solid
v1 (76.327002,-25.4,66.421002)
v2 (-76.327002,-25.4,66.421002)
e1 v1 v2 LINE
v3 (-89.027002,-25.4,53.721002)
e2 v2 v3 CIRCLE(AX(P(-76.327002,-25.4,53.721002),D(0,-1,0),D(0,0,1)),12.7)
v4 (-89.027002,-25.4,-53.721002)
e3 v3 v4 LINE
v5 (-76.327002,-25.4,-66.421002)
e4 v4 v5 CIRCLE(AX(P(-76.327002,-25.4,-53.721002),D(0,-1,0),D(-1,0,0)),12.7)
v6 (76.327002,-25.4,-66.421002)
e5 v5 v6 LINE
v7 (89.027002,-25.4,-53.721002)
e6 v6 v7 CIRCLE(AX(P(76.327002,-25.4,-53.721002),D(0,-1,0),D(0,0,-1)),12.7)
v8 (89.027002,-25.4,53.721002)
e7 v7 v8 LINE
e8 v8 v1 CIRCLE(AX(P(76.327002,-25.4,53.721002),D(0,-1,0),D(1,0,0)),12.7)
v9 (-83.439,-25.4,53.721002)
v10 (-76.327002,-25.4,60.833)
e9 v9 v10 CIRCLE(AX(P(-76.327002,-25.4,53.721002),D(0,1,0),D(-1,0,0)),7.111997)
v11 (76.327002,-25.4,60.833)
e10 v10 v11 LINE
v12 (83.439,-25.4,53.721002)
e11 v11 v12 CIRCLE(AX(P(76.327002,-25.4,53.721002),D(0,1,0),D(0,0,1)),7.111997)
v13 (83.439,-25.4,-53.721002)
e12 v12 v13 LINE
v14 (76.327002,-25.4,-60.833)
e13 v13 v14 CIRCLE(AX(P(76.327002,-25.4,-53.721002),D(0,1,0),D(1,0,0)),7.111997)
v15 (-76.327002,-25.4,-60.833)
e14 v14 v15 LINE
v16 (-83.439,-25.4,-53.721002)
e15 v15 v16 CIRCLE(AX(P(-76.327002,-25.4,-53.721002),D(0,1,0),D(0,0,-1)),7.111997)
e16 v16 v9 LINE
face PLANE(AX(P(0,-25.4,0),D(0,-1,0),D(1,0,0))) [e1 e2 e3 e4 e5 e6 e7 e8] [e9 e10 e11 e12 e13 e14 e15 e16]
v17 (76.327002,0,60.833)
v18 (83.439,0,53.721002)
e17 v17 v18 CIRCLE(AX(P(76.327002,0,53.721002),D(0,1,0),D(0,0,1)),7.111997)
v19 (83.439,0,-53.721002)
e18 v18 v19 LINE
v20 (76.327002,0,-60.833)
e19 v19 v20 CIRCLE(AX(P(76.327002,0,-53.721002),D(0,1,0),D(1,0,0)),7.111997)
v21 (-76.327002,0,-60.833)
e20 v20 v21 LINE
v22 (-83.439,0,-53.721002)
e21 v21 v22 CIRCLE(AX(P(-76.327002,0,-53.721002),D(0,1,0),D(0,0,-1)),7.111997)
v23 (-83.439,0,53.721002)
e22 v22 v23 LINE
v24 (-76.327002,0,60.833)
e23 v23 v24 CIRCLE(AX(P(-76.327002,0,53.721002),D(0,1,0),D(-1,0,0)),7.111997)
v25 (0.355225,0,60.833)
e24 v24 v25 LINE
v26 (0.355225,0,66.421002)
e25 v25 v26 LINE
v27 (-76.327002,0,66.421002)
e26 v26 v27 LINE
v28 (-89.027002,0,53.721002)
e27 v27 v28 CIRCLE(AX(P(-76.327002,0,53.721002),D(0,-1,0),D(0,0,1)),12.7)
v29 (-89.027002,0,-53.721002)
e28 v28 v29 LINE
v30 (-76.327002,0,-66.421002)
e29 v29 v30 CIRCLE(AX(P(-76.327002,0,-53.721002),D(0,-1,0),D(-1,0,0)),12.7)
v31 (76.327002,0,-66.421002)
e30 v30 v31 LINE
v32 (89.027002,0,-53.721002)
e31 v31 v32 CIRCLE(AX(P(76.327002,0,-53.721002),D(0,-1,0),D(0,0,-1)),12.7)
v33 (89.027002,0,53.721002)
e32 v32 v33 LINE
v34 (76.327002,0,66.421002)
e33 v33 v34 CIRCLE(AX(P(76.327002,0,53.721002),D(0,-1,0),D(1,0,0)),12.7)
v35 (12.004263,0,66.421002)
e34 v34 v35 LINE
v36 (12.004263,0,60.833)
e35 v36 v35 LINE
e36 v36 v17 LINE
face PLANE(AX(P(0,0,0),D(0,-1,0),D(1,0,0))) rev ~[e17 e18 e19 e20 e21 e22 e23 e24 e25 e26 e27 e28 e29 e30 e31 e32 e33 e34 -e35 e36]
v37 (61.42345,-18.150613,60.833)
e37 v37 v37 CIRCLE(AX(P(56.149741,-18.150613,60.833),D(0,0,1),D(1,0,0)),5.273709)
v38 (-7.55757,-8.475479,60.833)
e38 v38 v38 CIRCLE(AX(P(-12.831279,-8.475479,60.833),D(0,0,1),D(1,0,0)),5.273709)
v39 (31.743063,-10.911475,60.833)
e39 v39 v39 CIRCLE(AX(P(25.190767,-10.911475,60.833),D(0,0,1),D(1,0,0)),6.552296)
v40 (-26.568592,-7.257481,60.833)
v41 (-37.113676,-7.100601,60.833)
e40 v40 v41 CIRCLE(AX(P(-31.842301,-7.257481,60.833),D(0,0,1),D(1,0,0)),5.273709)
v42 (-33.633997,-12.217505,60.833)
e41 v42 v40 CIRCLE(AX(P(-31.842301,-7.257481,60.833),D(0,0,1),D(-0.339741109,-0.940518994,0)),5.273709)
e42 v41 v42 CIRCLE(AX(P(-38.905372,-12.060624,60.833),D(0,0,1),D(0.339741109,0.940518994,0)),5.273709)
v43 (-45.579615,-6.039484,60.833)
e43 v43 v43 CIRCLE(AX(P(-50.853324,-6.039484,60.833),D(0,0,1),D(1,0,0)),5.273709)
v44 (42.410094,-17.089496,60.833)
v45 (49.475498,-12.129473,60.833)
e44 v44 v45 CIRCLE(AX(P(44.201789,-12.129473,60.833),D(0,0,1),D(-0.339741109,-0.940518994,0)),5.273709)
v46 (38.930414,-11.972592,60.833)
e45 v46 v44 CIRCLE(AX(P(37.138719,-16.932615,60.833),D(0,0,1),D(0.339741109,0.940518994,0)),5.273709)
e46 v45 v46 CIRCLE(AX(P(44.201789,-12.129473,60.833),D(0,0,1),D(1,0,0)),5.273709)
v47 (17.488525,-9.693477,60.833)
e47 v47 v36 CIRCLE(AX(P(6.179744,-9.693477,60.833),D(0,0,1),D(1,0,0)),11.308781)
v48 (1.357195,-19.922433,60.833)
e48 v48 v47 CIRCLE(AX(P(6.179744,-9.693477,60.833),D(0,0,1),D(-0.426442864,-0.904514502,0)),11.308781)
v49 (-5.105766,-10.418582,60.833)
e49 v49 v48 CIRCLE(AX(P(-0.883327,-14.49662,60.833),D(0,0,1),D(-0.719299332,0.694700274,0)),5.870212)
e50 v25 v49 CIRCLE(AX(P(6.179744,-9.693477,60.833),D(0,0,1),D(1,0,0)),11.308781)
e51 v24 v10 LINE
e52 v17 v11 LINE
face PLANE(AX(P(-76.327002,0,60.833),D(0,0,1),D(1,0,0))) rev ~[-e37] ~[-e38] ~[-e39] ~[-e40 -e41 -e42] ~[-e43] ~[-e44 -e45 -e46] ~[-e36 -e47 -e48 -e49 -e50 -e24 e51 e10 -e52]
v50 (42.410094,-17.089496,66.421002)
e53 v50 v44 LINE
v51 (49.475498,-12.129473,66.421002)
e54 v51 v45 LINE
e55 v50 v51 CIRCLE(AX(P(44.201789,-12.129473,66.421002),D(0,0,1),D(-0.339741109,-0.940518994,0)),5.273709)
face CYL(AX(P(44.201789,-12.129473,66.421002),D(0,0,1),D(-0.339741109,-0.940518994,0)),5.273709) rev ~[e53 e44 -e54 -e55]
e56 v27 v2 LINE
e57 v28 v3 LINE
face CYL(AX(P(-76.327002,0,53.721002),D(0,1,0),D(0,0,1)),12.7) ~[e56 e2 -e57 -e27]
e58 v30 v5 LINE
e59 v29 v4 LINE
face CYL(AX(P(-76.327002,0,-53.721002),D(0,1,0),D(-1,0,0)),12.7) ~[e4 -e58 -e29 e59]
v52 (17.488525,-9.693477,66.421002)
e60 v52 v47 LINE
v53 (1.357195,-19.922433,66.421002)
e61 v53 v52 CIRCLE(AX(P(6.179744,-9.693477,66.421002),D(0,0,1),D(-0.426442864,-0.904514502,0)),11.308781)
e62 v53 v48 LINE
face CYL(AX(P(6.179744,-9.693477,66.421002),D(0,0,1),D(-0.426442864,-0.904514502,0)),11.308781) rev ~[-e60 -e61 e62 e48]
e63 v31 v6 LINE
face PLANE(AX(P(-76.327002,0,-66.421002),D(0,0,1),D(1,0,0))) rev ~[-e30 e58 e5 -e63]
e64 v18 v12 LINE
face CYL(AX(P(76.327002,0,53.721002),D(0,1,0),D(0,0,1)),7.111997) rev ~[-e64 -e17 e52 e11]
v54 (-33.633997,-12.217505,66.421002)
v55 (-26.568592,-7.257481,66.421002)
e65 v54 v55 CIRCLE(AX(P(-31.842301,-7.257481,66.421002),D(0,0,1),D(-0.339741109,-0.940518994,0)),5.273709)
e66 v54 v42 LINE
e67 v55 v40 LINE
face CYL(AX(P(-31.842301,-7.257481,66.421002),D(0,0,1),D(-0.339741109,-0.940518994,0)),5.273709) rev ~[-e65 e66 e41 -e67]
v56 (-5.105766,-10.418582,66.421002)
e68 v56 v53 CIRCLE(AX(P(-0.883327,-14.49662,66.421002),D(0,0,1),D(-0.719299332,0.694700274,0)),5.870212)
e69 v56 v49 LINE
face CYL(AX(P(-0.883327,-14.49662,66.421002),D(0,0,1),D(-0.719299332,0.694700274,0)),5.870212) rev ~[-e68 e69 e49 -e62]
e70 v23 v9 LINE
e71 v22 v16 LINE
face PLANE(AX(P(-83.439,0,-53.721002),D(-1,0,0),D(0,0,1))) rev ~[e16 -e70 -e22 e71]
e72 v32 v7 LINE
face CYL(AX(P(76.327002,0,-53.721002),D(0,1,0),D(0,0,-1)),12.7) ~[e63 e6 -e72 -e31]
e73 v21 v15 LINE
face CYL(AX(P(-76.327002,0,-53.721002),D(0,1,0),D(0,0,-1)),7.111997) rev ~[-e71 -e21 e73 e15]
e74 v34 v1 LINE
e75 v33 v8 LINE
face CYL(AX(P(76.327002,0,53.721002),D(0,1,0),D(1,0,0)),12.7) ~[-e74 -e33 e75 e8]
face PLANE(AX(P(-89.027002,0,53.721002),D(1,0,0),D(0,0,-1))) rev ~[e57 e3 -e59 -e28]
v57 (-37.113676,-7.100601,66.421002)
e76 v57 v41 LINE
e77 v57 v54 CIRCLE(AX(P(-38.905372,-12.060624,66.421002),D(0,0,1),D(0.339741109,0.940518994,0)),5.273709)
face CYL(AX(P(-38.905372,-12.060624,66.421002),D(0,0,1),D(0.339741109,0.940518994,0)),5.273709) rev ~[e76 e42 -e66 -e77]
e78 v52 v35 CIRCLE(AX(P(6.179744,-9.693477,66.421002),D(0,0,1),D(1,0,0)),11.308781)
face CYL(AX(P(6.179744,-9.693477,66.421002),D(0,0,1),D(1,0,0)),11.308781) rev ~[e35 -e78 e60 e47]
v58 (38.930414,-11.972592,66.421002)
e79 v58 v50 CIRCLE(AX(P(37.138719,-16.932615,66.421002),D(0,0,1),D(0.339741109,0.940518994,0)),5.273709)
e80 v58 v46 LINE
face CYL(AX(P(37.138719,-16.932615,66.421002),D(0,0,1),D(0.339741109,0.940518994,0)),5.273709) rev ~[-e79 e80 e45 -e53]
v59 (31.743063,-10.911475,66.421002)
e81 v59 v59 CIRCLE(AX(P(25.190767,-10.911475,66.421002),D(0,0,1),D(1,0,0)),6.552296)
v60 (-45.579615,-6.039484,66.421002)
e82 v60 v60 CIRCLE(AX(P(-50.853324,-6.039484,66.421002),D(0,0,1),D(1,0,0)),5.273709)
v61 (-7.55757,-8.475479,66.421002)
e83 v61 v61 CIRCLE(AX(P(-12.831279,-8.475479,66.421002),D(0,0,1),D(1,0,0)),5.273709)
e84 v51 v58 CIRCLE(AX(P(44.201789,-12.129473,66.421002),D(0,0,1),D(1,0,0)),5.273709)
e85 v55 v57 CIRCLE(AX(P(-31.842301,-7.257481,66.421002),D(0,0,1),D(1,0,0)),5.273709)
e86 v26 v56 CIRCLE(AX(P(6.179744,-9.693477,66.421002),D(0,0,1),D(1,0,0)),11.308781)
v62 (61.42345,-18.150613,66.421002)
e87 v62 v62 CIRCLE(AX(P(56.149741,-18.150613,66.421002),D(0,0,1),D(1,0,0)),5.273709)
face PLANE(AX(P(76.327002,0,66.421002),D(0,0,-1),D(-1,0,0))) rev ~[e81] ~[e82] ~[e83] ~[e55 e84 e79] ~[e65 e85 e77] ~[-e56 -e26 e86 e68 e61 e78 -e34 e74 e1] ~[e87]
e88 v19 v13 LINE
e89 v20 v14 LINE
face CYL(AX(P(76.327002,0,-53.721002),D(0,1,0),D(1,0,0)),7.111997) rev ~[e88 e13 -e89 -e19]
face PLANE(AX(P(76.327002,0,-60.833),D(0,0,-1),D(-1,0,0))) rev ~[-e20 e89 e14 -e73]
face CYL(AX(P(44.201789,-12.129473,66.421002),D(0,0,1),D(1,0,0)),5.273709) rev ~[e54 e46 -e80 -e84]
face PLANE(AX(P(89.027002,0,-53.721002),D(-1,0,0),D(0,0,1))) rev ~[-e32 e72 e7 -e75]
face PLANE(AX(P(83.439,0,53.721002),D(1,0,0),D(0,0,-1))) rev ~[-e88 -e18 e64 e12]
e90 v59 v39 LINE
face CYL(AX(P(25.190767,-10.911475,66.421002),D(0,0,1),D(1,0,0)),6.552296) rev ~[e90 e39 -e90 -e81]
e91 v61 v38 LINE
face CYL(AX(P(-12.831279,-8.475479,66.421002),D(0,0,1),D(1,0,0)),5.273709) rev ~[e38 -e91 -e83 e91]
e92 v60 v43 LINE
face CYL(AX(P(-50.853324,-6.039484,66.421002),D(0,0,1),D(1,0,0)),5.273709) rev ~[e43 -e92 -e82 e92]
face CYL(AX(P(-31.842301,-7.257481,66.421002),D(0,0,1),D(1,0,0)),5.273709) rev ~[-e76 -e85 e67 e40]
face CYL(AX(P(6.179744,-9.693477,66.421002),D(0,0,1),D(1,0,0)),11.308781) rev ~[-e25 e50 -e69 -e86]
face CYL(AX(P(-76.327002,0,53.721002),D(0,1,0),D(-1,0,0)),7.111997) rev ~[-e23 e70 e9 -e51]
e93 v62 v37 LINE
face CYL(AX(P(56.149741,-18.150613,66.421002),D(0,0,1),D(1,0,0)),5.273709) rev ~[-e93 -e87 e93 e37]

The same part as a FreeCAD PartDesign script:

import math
import FreeCAD as App
import Part
import Sketcher
from FreeCAD import Vector
Q = App.Units.Quantity

doc = App.newDocument("Part")
body = doc.addObject("PartDesign::Body", "Body")

sketch1 = body.newObject("Sketcher::SketchObject", "Sketch")
sketch1.AttachmentSupport = (doc.getObject("XZ_Plane"), [""])
sketch1.MapMode = "FlatFace"
sketch1.addGeometry(Part.LineSegment(Vector(76, 66, 0), Vector(-76, 66, 0)), False)
sketch1.addGeometry(Part.ArcOfCircle(Part.Circle(Vector(-76, 54, 0), Vector(0, 0, 1), 13), math.radians(90), math.radians(180)), False)
sketch1.addGeometry(Part.LineSegment(Vector(-89, 54, 0), Vector(-89, -54, 0)), False)
sketch1.addGeometry(Part.ArcOfCircle(Part.Circle(Vector(-76, -54, 0), Vector(0, 0, 1), 13), math.radians(180), math.radians(270)), False)
sketch1.addGeometry(Part.LineSegment(Vector(-76, -66, 0), Vector(76, -66, 0)), False)
sketch1.addGeometry(Part.ArcOfCircle(Part.Circle(Vector(76, -54, 0), Vector(0, 0, 1), 13), math.radians(-90), math.radians(0)), False)
sketch1.addGeometry(Part.LineSegment(Vector(89, -54, 0), Vector(89, 54, 0)), False)
sketch1.addGeometry(Part.ArcOfCircle(Part.Circle(Vector(76, 54, 0), Vector(0, 0, 1), 13), math.radians(0), math.radians(90)), False)
sketch1.addGeometry(Part.LineSegment(Vector(-83, -54, 0), Vector(-83, 54, 0)), False)
sketch1.addGeometry(Part.ArcOfCircle(Part.Circle(Vector(-76, 54, 0), Vector(0, 0, 1), 7), math.radians(90), math.radians(180)), False)
sketch1.addGeometry(Part.LineSegment(Vector(-76, 61, 0), Vector(76, 61, 0)), False)
sketch1.addGeometry(Part.ArcOfCircle(Part.Circle(Vector(76, 54, 0), Vector(0, 0, 1), 7), math.radians(0), math.radians(90)), False)
sketch1.addGeometry(Part.LineSegment(Vector(83, 54, 0), Vector(83, -54, 0)), False)
sketch1.addGeometry(Part.ArcOfCircle(Part.Circle(Vector(76, -54, 0), Vector(0, 0, 1), 7), math.radians(-90), math.radians(0)), False)
sketch1.addGeometry(Part.LineSegment(Vector(76, -61, 0), Vector(-76, -61, 0)), False)
sketch1.addGeometry(Part.ArcOfCircle(Part.Circle(Vector(-76, -54, 0), Vector(0, 0, 1), 7), math.radians(180), math.radians(270)), False)
sketch1.addConstraint(Sketcher.Constraint("Tangent", 0, 2, 1, 1))
sketch1.addConstraint(Sketcher.Constraint("Tangent", 1, 2, 2, 1))
sketch1.addConstraint(Sketcher.Constraint("Tangent", 2, 2, 3, 1))
sketch1.addConstraint(Sketcher.Constraint("Tangent", 3, 2, 4, 1))
sketch1.addConstraint(Sketcher.Constraint("Tangent", 4, 2, 5, 1))
sketch1.addConstraint(Sketcher.Constraint("Tangent", 5, 2, 6, 1))
sketch1.addConstraint(Sketcher.Constraint("Tangent", 6, 2, 7, 1))
sketch1.addConstraint(Sketcher.Constraint("Tangent", 7, 2, 0, 1))
sketch1.addConstraint(Sketcher.Constraint("Tangent", 8, 2, 9, 2))
sketch1.addConstraint(Sketcher.Constraint("Tangent", 9, 1, 10, 1))
sketch1.addConstraint(Sketcher.Constraint("Tangent", 10, 2, 11, 2))
sketch1.addConstraint(Sketcher.Constraint("Tangent", 11, 1, 12, 1))
sketch1.addConstraint(Sketcher.Constraint("Tangent", 12, 2, 13, 2))
sketch1.addConstraint(Sketcher.Constraint("Tangent", 13, 1, 14, 1))
sketch1.addConstraint(Sketcher.Constraint("Tangent", 14, 2, 15, 2))
sketch1.addConstraint(Sketcher.Constraint("Tangent", 15, 1, 8, 1))
sketch1.addConstraint(Sketcher.Constraint("Horizontal", 0))
sketch1.addConstraint(Sketcher.Constraint("Vertical", 2))
sketch1.addConstraint(Sketcher.Constraint("Horizontal", 4))
sketch1.addConstraint(Sketcher.Constraint("Vertical", 6))
sketch1.addConstraint(Sketcher.Constraint("Vertical", 8))
sketch1.addConstraint(Sketcher.Constraint("Horizontal", 10))
sketch1.addConstraint(Sketcher.Constraint("Vertical", 12))
sketch1.addConstraint(Sketcher.Constraint("Horizontal", 14))
sketch1.addConstraint(Sketcher.Constraint("Coincident", 9, 3, 1, 3))
sketch1.addConstraint(Sketcher.Constraint("Coincident", 11, 3, 7, 3))
sketch1.addConstraint(Sketcher.Constraint("Coincident", 13, 3, 5, 3))
sketch1.addConstraint(Sketcher.Constraint("Equal", 1, 3))
sketch1.addConstraint(Sketcher.Constraint("Equal", 3, 5))
sketch1.addConstraint(Sketcher.Constraint("Equal", 5, 7))
sketch1.addConstraint(Sketcher.Constraint("Equal", 13, 15))
sketch1.addConstraint(Sketcher.Constraint("Symmetric", 1, 3, 5, 3, -1, 1))
sketch1.addConstraint(Sketcher.Constraint("Radius", 1, Q("0.5 in")))
sketch1.addConstraint(Sketcher.Constraint("Radius", 9, Q("0.2799999 in")))
sketch1.addConstraint(Sketcher.Constraint("DistanceX", 0, 2, 0, 1, Q("6.0100002 in")))
sketch1.addConstraint(Sketcher.Constraint("DistanceY", 2, 2, 2, 1, Q("4.2300002 in")))
pad1 = body.newObject("PartDesign::Pad", "Pad")
pad1.Profile = sketch1
pad1.Length = Q("1 in")

sketch2 = body.newObject("Sketcher::SketchObject", "Sketch001")
sketch2.AttachmentSupport = (doc.getObject("XY_Plane"), [""])
sketch2.MapMode = "FlatFace"
sketch2.AttachmentOffset = App.Placement(Vector(0, 0, 2.6150001 * 25.4), App.Rotation())
sketch2.addGeometry(Part.ArcOfCircle(Part.Circle(Vector(44, -12, 0), Vector(0, 0, 1), 5), math.radians(-110), math.radians(0)), False)
sketch2.addGeometry(Part.ArcOfCircle(Part.Circle(Vector(44, -12, 0), Vector(0, 0, 1), 5), math.radians(0), math.radians(178)), False)
sketch2.addGeometry(Part.ArcOfCircle(Part.Circle(Vector(37, -17, 0), Vector(0, 0, 1), 5), math.radians(70), math.radians(358)), False)
sketch2.addGeometry(Part.Circle(Vector(56, -18, 0), Vector(0, 0, 1), 5), False)
sketch2.addGeometry(Part.Circle(Vector(25, -11, 0), Vector(0, 0, 1), 7), False)
sketch2.addGeometry(Part.ArcOfCircle(Part.Circle(Vector(6, -10, 0), Vector(0, 0, 1), 11), math.radians(-115), math.radians(0)), False)
sketch2.addGeometry(Part.ArcOfCircle(Part.Circle(Vector(6, -10, 0), Vector(0, 0, 1), 11), math.radians(0), math.radians(184)), False)
sketch2.addGeometry(Part.ArcOfCircle(Part.Circle(Vector(-1, -14, 0), Vector(0, 0, 1), 6), math.radians(136), math.radians(292)), False)
sketch2.addGeometry(Part.Circle(Vector(-13, -8, 0), Vector(0, 0, 1), 5), False)
sketch2.addGeometry(Part.ArcOfCircle(Part.Circle(Vector(-32, -7, 0), Vector(0, 0, 1), 5), math.radians(-110), math.radians(0)), False)
sketch2.addGeometry(Part.ArcOfCircle(Part.Circle(Vector(-32, -7, 0), Vector(0, 0, 1), 5), math.radians(0), math.radians(178)), False)
sketch2.addGeometry(Part.ArcOfCircle(Part.Circle(Vector(-39, -12, 0), Vector(0, 0, 1), 5), math.radians(70), math.radians(358)), False)
sketch2.addGeometry(Part.Circle(Vector(-51, -6, 0), Vector(0, 0, 1), 5), False)
sketch2.addConstraint(Sketcher.Constraint("Tangent", 0, 2, 1, 1))
sketch2.addConstraint(Sketcher.Constraint("Coincident", 1, 2, 2, 1))
sketch2.addConstraint(Sketcher.Constraint("Coincident", 2, 2, 0, 1))
sketch2.addConstraint(Sketcher.Constraint("Tangent", 5, 2, 6, 1))
sketch2.addConstraint(Sketcher.Constraint("Coincident", 6, 2, 7, 1))
sketch2.addConstraint(Sketcher.Constraint("Coincident", 7, 2, 5, 1))
sketch2.addConstraint(Sketcher.Constraint("Tangent", 9, 2, 10, 1))
sketch2.addConstraint(Sketcher.Constraint("Coincident", 10, 2, 11, 1))
sketch2.addConstraint(Sketcher.Constraint("Coincident", 11, 2, 9, 1))
sketch2.addConstraint(Sketcher.Constraint("Equal", 0, 1))
sketch2.addConstraint(Sketcher.Constraint("Equal", 1, 2))
sketch2.addConstraint(Sketcher.Constraint("Equal", 2, 3))
sketch2.addConstraint(Sketcher.Constraint("Equal", 5, 6))
sketch2.addConstraint(Sketcher.Constraint("Equal", 3, 8))
sketch2.addConstraint(Sketcher.Constraint("Equal", 8, 9))
sketch2.addConstraint(Sketcher.Constraint("Equal", 9, 10))
sketch2.addConstraint(Sketcher.Constraint("Equal", 10, 11))
sketch2.addConstraint(Sketcher.Constraint("Equal", 11, 12))
sketch2.addConstraint(Sketcher.Constraint("Horizontal", 1, 3, 0, 2))
sketch2.addConstraint(Sketcher.Constraint("Horizontal", 6, 3, 5, 2))
sketch2.addConstraint(Sketcher.Constraint("Horizontal", 10, 3, 9, 2))
sketch2.addConstraint(Sketcher.Constraint("Radius", 0, Q("5.273709 mm")))
sketch2.addConstraint(Sketcher.Constraint("Radius", 5, Q("11.308781 mm")))
sketch2.addConstraint(Sketcher.Constraint("Diameter", 4, Q("13.104593 mm")))
sketch2.addConstraint(Sketcher.Constraint("Radius", 7, Q("5.870212 mm")))
sketch2.addConstraint(Sketcher.Constraint("DistanceY", 2, 3, 0, 3, Q("0.1891001 in")))
sketch2.addConstraint(Sketcher.Constraint("DistanceY", 7, 3, 5, 3, Q("0.1891001 in")))
sketch2.addConstraint(Sketcher.Constraint("DistanceY", 11, 3, 9, 3, Q("0.1891001 in")))
sketch2.addConstraint(Sketcher.Constraint("DistanceX", 2, 3, 0, 2, Q("0.4857 in")))
sketch2.addConstraint(Sketcher.Constraint("DistanceY", 6, 2, 8, 3, Q("0.0765001 in")))
sketch2.addConstraint(Sketcher.Constraint("DistanceX", 11, 3, 9, 2, Q("0.4857 in")))
sketch2.addConstraint(Sketcher.Constraint("DistanceX", 9, 3, -1, 1, Q("31.842301 mm")))
sketch2.addConstraint(Sketcher.Constraint("DistanceX", -1, 1, 0, 2, Q("49.475498 mm")))
sketch2.addConstraint(Sketcher.Constraint("DistanceY", 10, 2, -1, 1, Q("7.100601 mm")))
sketch2.addConstraint(Sketcher.Constraint("DistanceY", 6, 2, 9, 2, Q("3.1611 mm")))
sketch2.addConstraint(Sketcher.Constraint("DistanceX", -1, 1, 3, 3, Q("56.149741 mm")))
sketch2.addConstraint(Sketcher.Constraint("DistanceY", 7, 3, -1, 1, Q("14.49662 mm")))
sketch2.addConstraint(Sketcher.Constraint("DistanceX", 8, 3, -1, 1, Q("12.831279 mm")))
sketch2.addConstraint(Sketcher.Constraint("DistanceY", 1, 2, -1, 1, Q("11.972592 mm")))
sketch2.addConstraint(Sketcher.Constraint("DistanceY", 3, 3, 0, 3, Q("6.021141 mm")))
sketch2.addConstraint(Sketcher.Constraint("DistanceX", 4, 3, 2, 3, Q("11.947952 mm")))
sketch2.addConstraint(Sketcher.Constraint("DistanceY", 2, 3, 4, 3, Q("6.021141 mm")))
sketch2.addConstraint(Sketcher.Constraint("DistanceX", 8, 3, 7, 3, Q("11.947952 mm")))
sketch2.addConstraint(Sketcher.Constraint("DistanceX", 12, 3, 11, 3, Q("11.947952 mm")))
sketch2.addConstraint(Sketcher.Constraint("DistanceY", 11, 3, 12, 3, Q("6.021141 mm")))
pocket1 = body.newObject("PartDesign::Pocket", "Pocket")
pocket1.Profile = sketch2
pocket1.Length = Q("1 in")

doc.recompute()
